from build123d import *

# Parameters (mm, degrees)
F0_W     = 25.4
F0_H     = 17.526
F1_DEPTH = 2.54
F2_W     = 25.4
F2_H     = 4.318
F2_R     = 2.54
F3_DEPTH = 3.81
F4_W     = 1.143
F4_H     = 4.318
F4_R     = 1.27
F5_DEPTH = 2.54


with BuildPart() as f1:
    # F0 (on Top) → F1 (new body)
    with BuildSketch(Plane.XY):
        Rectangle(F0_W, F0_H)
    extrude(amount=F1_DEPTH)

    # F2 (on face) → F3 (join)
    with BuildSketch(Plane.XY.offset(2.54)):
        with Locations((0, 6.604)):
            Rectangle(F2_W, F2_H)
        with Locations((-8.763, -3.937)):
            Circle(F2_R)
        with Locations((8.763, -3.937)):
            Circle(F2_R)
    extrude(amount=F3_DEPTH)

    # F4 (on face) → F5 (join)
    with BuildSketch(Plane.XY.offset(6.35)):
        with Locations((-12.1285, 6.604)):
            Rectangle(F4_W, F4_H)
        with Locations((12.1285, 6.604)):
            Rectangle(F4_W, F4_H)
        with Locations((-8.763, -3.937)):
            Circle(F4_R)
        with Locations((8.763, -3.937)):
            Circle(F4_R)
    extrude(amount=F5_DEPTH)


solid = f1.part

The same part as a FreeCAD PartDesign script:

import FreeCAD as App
import Part
import Sketcher
Q = App.Units.Quantity

doc = App.newDocument("Part")
body = doc.addObject("PartDesign::Body", "Body")

# Sketch on XY plane
sketch1 = body.newObject("Sketcher::SketchObject", "Sketch")
sketch1.AttachmentSupport = (doc.getObject("XY_Plane"), [""])
sketch1.MapMode = "FlatFace"
sketch1.addGeometry([
    Part.LineSegment(App.Vector(-13, 9, 0), App.Vector(-13, -9, 0)),
    Part.LineSegment(App.Vector(-13, -9, 0), App.Vector(13, -9, 0)),
    Part.LineSegment(App.Vector(13, -9, 0), App.Vector(13, 9, 0)),
    Part.LineSegment(App.Vector(13, 9, 0), App.Vector(-13, 9, 0)),
], False)
sketch1.addConstraint([
    Sketcher.Constraint("Coincident", 0, 2, 1, 1),
    Sketcher.Constraint("Coincident", 1, 2, 2, 1),
    Sketcher.Constraint("Coincident", 2, 2, 3, 1),
    Sketcher.Constraint("Coincident", 3, 2, 0, 1),
    Sketcher.Constraint("Vertical", 0),
    Sketcher.Constraint("Horizontal", 1),
    Sketcher.Constraint("Vertical", 2),
    Sketcher.Constraint("Horizontal", 3),
    Sketcher.Constraint("Symmetric", 0, 2, 2, 2, -1, 1),
    Sketcher.Constraint("DistanceX", 1, 1, 1, 2, Q("1 in")),
    Sketcher.Constraint("DistanceY", 0, 2, 0, 1, Q("0.69 in")),
])
pad1 = body.newObject("PartDesign::Pad", "Pad")
pad1.Profile = sketch1
pad1.Length = Q("0.1 in")

# Sketch on XY plane
sketch2 = body.newObject("Sketcher::SketchObject", "Sketch001")
sketch2.AttachmentSupport = (doc.getObject("XY_Plane"), [""])
sketch2.MapMode = "FlatFace"
sketch2.AttachmentOffset = App.Placement(App.Vector(0, 0, 0.1 * 25.4), App.Rotation())
sketch2.addGeometry([
    Part.LineSegment(App.Vector(-12.7, 8.8, 0), App.Vector(-12.7, 4.4, 0)),  # 0
    Part.LineSegment(App.Vector(-12.7, 4.4, 0), App.Vector(12.7, 4.4, 0)),  # 1
    Part.LineSegment(App.Vector(12.7, 4.4, 0), App.Vector(12.7, 8.8, 0)),  # 2
    Part.LineSegment(App.Vector(12.7, 8.8, 0), App.Vector(-12.7, 8.8, 0)),  # 3
    Part.Circle(App.Vector(-8.8, -3.9, 0), App.Vector(0, 0, 1), 2.5),  # 4
    Part.Circle(App.Vector(8.8, -3.9, 0), App.Vector(0, 0, 1), 2.5),  # 5
], False)
sketch2.addConstraint([
    Sketcher.Constraint("Coincident", 0, 2, 1, 1),
    Sketcher.Constraint("Coincident", 1, 2, 2, 1),
    Sketcher.Constraint("Coincident", 2, 2, 3, 1),
    Sketcher.Constraint("Coincident", 3, 2, 0, 1),
    Sketcher.Constraint("Vertical", 0),
    Sketcher.Constraint("Horizontal", 1),
    Sketcher.Constraint("Vertical", 2),
    Sketcher.Constraint("Horizontal", 3),
    Sketcher.Constraint("Equal", 4, 5),
    Sketcher.Constraint("Symmetric", 4, 3, 5, 3, -2),
    Sketcher.Constraint("Diameter", 4, Q("0.2 in")),
    Sketcher.Constraint("DistanceX", 1, 1, 1, 2, Q("1 in")),
    Sketcher.Constraint("DistanceY", 0, 2, 0, 1, Q("0.17 in")),
    Sketcher.Constraint("DistanceX", 0, 2, -1, 1, Q("0.5 in")),
    Sketcher.Constraint("DistanceY", 5, 3, 2, 2, Q("0.5 in")),
    Sketcher.Constraint("DistanceX", 4, 3, 5, 3, Q("0.69 in")),
    Sketcher.Constraint("DistanceY", 4, 3, -1, 1, Q("0.155 in")),
])
pad2 = body.newObject("PartDesign::Pad", "Pad001")
pad2.Profile = sketch2
pad2.Length = Q("0.15 in")

# Sketch on XY plane
sketch3 = body.newObject("Sketcher::SketchObject", "Sketch002")
sketch3.AttachmentSupport = (doc.getObject("XY_Plane"), [""])
sketch3.MapMode = "FlatFace"
sketch3.AttachmentOffset = App.Placement(App.Vector(0, 0, 0.25 * 25.4), App.Rotation())
sketch3.addGeometry([
    Part.LineSegment(App.Vector(-12.7, 8.8, 0), App.Vector(-12.7, 4.4, 0)),  # 0
    Part.LineSegment(App.Vector(-12.7, 4.4, 0), App.Vector(-11.6, 4.4, 0)),  # 1
    Part.LineSegment(App.Vector(-11.6, 4.4, 0), App.Vector(-11.6, 8.8, 0)),  # 2
    Part.LineSegment(App.Vector(-11.6, 8.8, 0), App.Vector(-12.7, 8.8, 0)),  # 3
    Part.LineSegment(App.Vector(11.6, 8.8, 0), App.Vector(11.6, 4.4, 0)),  # 4
    Part.LineSegment(App.Vector(11.6, 4.4, 0), App.Vector(12.7, 4.4, 0)),  # 5
    Part.LineSegment(App.Vector(12.7, 4.4, 0), App.Vector(12.7, 8.8, 0)),  # 6
    Part.LineSegment(App.Vector(12.7, 8.8, 0), App.Vector(11.6, 8.8, 0)),  # 7
    Part.Circle(App.Vector(-8.8, -3.9, 0), App.Vector(0, 0, 1), 1.3),  # 8
    Part.Circle(App.Vector(8.8, -3.9, 0), App.Vector(0, 0, 1), 1.3),  # 9
], False)
sketch3.addConstraint([
    Sketcher.Constraint("Coincident", 0, 2, 1, 1),
    Sketcher.Constraint("Coincident", 1, 2, 2, 1),
    Sketcher.Constraint("Coincident", 2, 2, 3, 1),
    Sketcher.Constraint("Coincident", 3, 2, 0, 1),
    Sketcher.Constraint("Coincident", 4, 2, 5, 1),
    Sketcher.Constraint("Coincident", 5, 2, 6, 1),
    Sketcher.Constraint("Coincident", 6, 2, 7, 1),
    Sketcher.Constraint("Coincident", 7, 2, 4, 1),
    Sketcher.Constraint("Vertical", 0),
    Sketcher.Constraint("Horizontal", 1),
    Sketcher.Constraint("Vertical", 2),
    Sketcher.Constraint("Horizontal", 3),
    Sketcher.Constraint("Vertical", 4),
    Sketcher.Constraint("Horizontal", 5),
    Sketcher.Constraint("Vertical", 6),
    Sketcher.Constraint("Horizontal", 7),
    Sketcher.Constraint("Equal", 8, 9),
    Sketcher.Constraint("Symmetric", 8, 3, 9, 3, -2),
    Sketcher.Constraint("Symmetric", 1, 2, 4, 2, -2),
    Sketcher.Constraint("Symmetric", 3, 2, 6, 2, -2),
    Sketcher.Constraint("Diameter", 8, Q("0.1 in")),
    Sketcher.Constraint("DistanceY", 0, 2, 0, 1, Q("0.17 in")),
    Sketcher.Constraint("DistanceX", 0, 2, -1, 1, Q("0.5 in")),
    Sketcher.Constraint("DistanceX", 1, 2, 9, 3, Q("0.8 in")),
    Sketcher.Constraint("DistanceY", 8, 3, 2, 2, Q("0.5 in")),
    Sketcher.Constraint("DistanceX", 1, 1, 1, 2, Q("0.045 in")),
    Sketcher.Constraint("DistanceY", 8, 3, -1, 1, Q("0.155 in")),
])
pad3 = body.newObject("PartDesign::Pad", "Pad002")
pad3.Profile = sketch3
pad3.Length = Q("0.1 in")

doc.recompute()
